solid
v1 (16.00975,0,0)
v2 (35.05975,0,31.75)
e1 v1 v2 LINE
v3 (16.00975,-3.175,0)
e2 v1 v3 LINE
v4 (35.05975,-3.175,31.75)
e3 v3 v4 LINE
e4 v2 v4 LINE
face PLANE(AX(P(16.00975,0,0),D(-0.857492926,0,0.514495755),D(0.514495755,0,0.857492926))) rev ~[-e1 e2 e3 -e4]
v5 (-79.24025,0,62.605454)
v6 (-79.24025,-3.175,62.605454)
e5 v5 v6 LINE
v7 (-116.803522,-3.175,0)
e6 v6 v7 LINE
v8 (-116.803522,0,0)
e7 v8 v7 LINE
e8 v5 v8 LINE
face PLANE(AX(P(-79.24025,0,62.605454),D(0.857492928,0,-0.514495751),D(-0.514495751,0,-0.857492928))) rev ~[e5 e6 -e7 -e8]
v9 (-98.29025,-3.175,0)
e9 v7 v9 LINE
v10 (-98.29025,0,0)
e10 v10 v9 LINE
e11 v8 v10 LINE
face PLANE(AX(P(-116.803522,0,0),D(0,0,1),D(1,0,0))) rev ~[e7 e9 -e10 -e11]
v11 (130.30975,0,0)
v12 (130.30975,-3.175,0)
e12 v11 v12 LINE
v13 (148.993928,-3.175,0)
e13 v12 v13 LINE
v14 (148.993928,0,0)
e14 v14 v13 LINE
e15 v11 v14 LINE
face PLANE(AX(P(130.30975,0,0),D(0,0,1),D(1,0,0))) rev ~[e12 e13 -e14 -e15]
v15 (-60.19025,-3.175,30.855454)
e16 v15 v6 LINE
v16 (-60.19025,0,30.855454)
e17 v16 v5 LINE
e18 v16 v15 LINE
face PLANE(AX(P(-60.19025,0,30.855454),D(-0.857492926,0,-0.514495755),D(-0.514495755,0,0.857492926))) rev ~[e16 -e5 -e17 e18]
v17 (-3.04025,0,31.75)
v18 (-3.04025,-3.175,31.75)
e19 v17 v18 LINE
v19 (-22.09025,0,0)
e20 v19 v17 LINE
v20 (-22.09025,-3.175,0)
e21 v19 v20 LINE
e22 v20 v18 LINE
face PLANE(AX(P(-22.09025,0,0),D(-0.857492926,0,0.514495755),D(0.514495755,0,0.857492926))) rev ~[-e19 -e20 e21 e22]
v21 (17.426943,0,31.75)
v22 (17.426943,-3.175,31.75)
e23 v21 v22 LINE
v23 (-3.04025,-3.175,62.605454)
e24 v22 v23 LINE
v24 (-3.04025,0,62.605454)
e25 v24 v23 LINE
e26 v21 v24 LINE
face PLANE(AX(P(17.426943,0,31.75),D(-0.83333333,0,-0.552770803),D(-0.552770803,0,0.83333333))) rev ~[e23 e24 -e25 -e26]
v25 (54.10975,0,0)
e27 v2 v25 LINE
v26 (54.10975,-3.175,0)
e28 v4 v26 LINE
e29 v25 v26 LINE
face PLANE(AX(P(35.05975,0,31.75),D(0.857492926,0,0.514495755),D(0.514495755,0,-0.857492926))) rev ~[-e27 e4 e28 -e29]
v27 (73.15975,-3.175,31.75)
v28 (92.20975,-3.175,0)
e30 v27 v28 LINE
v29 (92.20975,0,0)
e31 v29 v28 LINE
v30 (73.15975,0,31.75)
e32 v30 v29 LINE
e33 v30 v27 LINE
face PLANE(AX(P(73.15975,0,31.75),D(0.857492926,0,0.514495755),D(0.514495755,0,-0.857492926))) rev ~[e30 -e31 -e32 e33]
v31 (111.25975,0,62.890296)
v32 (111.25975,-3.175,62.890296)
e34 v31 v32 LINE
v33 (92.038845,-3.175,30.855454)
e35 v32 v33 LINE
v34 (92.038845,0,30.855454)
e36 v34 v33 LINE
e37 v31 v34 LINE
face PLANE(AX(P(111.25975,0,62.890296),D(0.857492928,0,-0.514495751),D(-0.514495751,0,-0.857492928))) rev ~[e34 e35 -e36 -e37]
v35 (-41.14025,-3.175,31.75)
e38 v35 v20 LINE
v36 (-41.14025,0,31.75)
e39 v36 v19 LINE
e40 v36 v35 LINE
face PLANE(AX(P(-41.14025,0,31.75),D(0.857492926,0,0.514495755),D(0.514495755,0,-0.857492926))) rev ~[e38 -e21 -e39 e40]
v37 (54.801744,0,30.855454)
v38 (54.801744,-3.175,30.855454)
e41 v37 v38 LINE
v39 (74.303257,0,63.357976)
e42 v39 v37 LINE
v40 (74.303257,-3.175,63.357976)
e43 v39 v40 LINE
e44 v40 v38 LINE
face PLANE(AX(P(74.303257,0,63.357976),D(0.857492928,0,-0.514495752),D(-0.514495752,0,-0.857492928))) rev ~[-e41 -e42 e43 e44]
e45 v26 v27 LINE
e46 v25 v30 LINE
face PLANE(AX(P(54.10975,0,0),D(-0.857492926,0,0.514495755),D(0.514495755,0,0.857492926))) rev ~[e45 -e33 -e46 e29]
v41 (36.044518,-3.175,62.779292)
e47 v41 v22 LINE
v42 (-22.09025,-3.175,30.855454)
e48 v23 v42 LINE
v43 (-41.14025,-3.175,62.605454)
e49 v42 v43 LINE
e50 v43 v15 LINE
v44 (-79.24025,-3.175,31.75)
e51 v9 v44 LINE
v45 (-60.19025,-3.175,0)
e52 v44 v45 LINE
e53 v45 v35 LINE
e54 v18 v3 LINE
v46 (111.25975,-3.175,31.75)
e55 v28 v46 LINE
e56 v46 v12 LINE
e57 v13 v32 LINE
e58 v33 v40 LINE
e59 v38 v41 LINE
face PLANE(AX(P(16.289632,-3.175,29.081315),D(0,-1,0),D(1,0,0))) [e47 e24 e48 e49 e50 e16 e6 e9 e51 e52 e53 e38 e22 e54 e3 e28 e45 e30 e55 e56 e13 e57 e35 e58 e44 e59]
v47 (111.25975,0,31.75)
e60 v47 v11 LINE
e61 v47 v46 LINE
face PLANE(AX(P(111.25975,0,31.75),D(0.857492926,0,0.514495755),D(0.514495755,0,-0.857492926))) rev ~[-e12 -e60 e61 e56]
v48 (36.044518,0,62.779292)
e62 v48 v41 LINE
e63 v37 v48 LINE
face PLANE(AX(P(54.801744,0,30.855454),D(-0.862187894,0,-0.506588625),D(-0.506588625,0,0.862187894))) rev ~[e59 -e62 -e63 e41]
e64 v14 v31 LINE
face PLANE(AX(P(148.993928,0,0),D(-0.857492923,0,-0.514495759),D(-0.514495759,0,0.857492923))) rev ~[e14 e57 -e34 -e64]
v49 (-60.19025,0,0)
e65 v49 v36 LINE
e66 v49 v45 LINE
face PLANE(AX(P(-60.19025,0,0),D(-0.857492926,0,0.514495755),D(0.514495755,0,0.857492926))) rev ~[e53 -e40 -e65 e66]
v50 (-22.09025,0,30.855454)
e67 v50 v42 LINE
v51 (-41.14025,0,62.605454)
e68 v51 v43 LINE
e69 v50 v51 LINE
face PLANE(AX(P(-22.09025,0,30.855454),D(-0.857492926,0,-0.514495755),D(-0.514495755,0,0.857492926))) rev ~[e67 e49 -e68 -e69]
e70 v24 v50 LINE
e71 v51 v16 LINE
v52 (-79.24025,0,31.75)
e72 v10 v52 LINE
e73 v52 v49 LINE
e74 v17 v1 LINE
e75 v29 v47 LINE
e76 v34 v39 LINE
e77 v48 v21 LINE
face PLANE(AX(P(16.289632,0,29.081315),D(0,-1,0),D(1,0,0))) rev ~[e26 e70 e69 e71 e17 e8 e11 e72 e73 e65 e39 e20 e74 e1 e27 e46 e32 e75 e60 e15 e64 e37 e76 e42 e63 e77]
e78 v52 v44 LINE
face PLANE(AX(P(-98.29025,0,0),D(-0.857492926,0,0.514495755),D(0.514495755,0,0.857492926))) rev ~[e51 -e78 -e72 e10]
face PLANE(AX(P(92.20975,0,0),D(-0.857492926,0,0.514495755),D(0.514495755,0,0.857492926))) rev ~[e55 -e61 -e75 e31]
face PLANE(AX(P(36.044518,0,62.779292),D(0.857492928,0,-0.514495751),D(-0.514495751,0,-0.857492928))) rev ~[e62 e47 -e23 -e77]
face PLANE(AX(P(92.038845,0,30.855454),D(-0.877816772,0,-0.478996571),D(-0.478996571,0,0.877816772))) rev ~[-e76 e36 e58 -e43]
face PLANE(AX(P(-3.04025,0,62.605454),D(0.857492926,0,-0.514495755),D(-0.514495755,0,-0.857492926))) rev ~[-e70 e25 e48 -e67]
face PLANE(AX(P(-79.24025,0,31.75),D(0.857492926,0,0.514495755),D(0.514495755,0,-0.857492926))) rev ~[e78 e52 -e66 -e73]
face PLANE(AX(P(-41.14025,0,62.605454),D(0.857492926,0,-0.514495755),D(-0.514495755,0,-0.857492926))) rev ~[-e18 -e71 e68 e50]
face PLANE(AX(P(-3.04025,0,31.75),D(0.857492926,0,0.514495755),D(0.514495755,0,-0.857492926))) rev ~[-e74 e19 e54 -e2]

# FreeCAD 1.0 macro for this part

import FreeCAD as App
import Part
import Sketcher
Q = App.Units.Quantity


def add_polygon(sketch, points):
    """Adds a closed chain of lines whose ends are joined by coincident constraints."""
    first, n = sketch.GeometryCount, len(points)
    for a, b in zip(points, points[1:] + points[:1]):
        sketch.addGeometry(Part.LineSegment(App.Vector(*a, 0), App.Vector(*b, 0)), False)
    for i in range(n):
        sketch.addConstraint(Sketcher.Constraint("Coincident", first + i, 2, first + (i + 1) % n, 1))

doc = App.newDocument("Part")
body = doc.addObject("PartDesign::Body", "Body")

sketch1 = body.newObject("Sketcher::SketchObject", "Sketch")
sketch1.AttachmentSupport = (doc.getObject("XZ_Plane"), [""])
sketch1.MapMode = "FlatFace"
add_polygon(sketch1, [(-98.29025, 0), (-79.24025, 31.75), (-60.19025, 0), (-41.14025, 31.75), (-22.09025, 0), (-3.04025, 31.75), (16.00975, 0), (35.05975, 31.75), (54.10975, 0), (73.15975, 31.75), (92.20975, 0), (111.25975, 31.75), (130.30975, 0), (148.993928, 0), (111.25975, 62.890296), (92.038845, 30.855454), (74.303257, 63.357976), (54.801744, 30.855454), (36.044518, 62.779292), (17.426943, 31.75), (-3.04025, 62.605454), (-22.09025, 30.855454), (-41.14025, 62.605454), (-60.19025, 30.855454), (-79.24025, 62.605454), (-116.803522, 0)])
sketch1.addConstraint([
    Sketcher.Constraint("Horizontal", 12),
    Sketcher.Constraint("Horizontal", 25),
    Sketcher.Constraint("PointOnObject", 1, 2, -1),
    Sketcher.Constraint("PointOnObject", 3, 2, -1),
    Sketcher.Constraint("PointOnObject", 5, 2, -1),
    Sketcher.Constraint("PointOnObject", 7, 2, -1),
    Sketcher.Constraint("PointOnObject", 9, 2, -1),
    Sketcher.Constraint("PointOnObject", 11, 2, -1),
    Sketcher.Constraint("PointOnObject", 24, 2, -1),
    Sketcher.Constraint("Parallel", 0, 2),
    Sketcher.Constraint("Parallel", 1, 3),
    Sketcher.Constraint("Parallel", 2, 4),
    Sketcher.Constraint("Parallel", 3, 5),
    Sketcher.Constraint("Parallel", 4, 6),
    Sketcher.Constraint("Parallel", 5, 7),
    Sketcher.Constraint("Parallel", 6, 8),
    Sketcher.Constraint("Parallel", 7, 9),
    Sketcher.Constraint("Parallel", 8, 10),
    Sketcher.Constraint("Parallel", 9, 11),
    Sketcher.Constraint("Parallel", 11, 13),
    Sketcher.Constraint("Parallel", 10, 14),
    Sketcher.Constraint("Parallel", 14, 16),
    Sketcher.Constraint("Parallel", 16, 18),
    Sketcher.Constraint("Parallel", 18, 20),
    Sketcher.Constraint("Parallel", 13, 21),
    Sketcher.Constraint("Parallel", 20, 22),
    Sketcher.Constraint("Parallel", 21, 23),
    Sketcher.Constraint("Parallel", 22, 24),
    Sketcher.Constraint("Horizontal", 0, 2, 2, 2),
    Sketcher.Constraint("Horizontal", 2, 2, 4, 2),
    Sketcher.Constraint("Horizontal", 4, 2, 6, 2),
    Sketcher.Constraint("Horizontal", 6, 2, 8, 2),
    Sketcher.Constraint("Horizontal", 8, 2, 10, 2),
    Sketcher.Constraint("Horizontal", 14, 2, 16, 2),
    Sketcher.Constraint("Horizontal", 10, 2, 18, 2),
    Sketcher.Constraint("Horizontal", 16, 2, 20, 2),
    Sketcher.Constraint("Horizontal", 19, 2, 21, 2),
    Sketcher.Constraint("Horizontal", 20, 2, 22, 2),
    Sketcher.Constraint("Horizontal", 21, 2, 23, 2),
    Sketcher.Constraint("Vertical", 10, 2, 13, 2),
    Sketcher.Constraint("Vertical", 4, 2, 19, 2),
    Sketcher.Constraint("Vertical", 3, 2, 20, 2),
    Sketcher.Constraint("Equal", 0, 1),
    Sketcher.Constraint("Equal", 11, 15),
    Sketcher.Constraint("Equal", 15, 17),
    Sketcher.Constraint("Equal", 17, 19),
    Sketcher.Constraint("DistanceX", 0, 2, 4, 2, Q("3 in")),
    Sketcher.Constraint("DistanceY", -1, 1, 0, 2, Q("1.25 in")),
    Sketcher.Constraint("DistanceX", -1, 1, 18, 2, Q("0.6861001 in")),
    Sketcher.Constraint("DistanceX", 12, 1, 12, 2, 18.684178),
    Sketcher.Constraint("DistanceX", 16, 2, 14, 2, 37.237101),
    Sketcher.Constraint("DistanceX", 18, 2, 16, 2, 37.374801),
])
pad1 = body.newObject("PartDesign::Pad", "Pad")
pad1.Profile = sketch1
pad1.Length = Q("0.125 in")

doc.recompute()
